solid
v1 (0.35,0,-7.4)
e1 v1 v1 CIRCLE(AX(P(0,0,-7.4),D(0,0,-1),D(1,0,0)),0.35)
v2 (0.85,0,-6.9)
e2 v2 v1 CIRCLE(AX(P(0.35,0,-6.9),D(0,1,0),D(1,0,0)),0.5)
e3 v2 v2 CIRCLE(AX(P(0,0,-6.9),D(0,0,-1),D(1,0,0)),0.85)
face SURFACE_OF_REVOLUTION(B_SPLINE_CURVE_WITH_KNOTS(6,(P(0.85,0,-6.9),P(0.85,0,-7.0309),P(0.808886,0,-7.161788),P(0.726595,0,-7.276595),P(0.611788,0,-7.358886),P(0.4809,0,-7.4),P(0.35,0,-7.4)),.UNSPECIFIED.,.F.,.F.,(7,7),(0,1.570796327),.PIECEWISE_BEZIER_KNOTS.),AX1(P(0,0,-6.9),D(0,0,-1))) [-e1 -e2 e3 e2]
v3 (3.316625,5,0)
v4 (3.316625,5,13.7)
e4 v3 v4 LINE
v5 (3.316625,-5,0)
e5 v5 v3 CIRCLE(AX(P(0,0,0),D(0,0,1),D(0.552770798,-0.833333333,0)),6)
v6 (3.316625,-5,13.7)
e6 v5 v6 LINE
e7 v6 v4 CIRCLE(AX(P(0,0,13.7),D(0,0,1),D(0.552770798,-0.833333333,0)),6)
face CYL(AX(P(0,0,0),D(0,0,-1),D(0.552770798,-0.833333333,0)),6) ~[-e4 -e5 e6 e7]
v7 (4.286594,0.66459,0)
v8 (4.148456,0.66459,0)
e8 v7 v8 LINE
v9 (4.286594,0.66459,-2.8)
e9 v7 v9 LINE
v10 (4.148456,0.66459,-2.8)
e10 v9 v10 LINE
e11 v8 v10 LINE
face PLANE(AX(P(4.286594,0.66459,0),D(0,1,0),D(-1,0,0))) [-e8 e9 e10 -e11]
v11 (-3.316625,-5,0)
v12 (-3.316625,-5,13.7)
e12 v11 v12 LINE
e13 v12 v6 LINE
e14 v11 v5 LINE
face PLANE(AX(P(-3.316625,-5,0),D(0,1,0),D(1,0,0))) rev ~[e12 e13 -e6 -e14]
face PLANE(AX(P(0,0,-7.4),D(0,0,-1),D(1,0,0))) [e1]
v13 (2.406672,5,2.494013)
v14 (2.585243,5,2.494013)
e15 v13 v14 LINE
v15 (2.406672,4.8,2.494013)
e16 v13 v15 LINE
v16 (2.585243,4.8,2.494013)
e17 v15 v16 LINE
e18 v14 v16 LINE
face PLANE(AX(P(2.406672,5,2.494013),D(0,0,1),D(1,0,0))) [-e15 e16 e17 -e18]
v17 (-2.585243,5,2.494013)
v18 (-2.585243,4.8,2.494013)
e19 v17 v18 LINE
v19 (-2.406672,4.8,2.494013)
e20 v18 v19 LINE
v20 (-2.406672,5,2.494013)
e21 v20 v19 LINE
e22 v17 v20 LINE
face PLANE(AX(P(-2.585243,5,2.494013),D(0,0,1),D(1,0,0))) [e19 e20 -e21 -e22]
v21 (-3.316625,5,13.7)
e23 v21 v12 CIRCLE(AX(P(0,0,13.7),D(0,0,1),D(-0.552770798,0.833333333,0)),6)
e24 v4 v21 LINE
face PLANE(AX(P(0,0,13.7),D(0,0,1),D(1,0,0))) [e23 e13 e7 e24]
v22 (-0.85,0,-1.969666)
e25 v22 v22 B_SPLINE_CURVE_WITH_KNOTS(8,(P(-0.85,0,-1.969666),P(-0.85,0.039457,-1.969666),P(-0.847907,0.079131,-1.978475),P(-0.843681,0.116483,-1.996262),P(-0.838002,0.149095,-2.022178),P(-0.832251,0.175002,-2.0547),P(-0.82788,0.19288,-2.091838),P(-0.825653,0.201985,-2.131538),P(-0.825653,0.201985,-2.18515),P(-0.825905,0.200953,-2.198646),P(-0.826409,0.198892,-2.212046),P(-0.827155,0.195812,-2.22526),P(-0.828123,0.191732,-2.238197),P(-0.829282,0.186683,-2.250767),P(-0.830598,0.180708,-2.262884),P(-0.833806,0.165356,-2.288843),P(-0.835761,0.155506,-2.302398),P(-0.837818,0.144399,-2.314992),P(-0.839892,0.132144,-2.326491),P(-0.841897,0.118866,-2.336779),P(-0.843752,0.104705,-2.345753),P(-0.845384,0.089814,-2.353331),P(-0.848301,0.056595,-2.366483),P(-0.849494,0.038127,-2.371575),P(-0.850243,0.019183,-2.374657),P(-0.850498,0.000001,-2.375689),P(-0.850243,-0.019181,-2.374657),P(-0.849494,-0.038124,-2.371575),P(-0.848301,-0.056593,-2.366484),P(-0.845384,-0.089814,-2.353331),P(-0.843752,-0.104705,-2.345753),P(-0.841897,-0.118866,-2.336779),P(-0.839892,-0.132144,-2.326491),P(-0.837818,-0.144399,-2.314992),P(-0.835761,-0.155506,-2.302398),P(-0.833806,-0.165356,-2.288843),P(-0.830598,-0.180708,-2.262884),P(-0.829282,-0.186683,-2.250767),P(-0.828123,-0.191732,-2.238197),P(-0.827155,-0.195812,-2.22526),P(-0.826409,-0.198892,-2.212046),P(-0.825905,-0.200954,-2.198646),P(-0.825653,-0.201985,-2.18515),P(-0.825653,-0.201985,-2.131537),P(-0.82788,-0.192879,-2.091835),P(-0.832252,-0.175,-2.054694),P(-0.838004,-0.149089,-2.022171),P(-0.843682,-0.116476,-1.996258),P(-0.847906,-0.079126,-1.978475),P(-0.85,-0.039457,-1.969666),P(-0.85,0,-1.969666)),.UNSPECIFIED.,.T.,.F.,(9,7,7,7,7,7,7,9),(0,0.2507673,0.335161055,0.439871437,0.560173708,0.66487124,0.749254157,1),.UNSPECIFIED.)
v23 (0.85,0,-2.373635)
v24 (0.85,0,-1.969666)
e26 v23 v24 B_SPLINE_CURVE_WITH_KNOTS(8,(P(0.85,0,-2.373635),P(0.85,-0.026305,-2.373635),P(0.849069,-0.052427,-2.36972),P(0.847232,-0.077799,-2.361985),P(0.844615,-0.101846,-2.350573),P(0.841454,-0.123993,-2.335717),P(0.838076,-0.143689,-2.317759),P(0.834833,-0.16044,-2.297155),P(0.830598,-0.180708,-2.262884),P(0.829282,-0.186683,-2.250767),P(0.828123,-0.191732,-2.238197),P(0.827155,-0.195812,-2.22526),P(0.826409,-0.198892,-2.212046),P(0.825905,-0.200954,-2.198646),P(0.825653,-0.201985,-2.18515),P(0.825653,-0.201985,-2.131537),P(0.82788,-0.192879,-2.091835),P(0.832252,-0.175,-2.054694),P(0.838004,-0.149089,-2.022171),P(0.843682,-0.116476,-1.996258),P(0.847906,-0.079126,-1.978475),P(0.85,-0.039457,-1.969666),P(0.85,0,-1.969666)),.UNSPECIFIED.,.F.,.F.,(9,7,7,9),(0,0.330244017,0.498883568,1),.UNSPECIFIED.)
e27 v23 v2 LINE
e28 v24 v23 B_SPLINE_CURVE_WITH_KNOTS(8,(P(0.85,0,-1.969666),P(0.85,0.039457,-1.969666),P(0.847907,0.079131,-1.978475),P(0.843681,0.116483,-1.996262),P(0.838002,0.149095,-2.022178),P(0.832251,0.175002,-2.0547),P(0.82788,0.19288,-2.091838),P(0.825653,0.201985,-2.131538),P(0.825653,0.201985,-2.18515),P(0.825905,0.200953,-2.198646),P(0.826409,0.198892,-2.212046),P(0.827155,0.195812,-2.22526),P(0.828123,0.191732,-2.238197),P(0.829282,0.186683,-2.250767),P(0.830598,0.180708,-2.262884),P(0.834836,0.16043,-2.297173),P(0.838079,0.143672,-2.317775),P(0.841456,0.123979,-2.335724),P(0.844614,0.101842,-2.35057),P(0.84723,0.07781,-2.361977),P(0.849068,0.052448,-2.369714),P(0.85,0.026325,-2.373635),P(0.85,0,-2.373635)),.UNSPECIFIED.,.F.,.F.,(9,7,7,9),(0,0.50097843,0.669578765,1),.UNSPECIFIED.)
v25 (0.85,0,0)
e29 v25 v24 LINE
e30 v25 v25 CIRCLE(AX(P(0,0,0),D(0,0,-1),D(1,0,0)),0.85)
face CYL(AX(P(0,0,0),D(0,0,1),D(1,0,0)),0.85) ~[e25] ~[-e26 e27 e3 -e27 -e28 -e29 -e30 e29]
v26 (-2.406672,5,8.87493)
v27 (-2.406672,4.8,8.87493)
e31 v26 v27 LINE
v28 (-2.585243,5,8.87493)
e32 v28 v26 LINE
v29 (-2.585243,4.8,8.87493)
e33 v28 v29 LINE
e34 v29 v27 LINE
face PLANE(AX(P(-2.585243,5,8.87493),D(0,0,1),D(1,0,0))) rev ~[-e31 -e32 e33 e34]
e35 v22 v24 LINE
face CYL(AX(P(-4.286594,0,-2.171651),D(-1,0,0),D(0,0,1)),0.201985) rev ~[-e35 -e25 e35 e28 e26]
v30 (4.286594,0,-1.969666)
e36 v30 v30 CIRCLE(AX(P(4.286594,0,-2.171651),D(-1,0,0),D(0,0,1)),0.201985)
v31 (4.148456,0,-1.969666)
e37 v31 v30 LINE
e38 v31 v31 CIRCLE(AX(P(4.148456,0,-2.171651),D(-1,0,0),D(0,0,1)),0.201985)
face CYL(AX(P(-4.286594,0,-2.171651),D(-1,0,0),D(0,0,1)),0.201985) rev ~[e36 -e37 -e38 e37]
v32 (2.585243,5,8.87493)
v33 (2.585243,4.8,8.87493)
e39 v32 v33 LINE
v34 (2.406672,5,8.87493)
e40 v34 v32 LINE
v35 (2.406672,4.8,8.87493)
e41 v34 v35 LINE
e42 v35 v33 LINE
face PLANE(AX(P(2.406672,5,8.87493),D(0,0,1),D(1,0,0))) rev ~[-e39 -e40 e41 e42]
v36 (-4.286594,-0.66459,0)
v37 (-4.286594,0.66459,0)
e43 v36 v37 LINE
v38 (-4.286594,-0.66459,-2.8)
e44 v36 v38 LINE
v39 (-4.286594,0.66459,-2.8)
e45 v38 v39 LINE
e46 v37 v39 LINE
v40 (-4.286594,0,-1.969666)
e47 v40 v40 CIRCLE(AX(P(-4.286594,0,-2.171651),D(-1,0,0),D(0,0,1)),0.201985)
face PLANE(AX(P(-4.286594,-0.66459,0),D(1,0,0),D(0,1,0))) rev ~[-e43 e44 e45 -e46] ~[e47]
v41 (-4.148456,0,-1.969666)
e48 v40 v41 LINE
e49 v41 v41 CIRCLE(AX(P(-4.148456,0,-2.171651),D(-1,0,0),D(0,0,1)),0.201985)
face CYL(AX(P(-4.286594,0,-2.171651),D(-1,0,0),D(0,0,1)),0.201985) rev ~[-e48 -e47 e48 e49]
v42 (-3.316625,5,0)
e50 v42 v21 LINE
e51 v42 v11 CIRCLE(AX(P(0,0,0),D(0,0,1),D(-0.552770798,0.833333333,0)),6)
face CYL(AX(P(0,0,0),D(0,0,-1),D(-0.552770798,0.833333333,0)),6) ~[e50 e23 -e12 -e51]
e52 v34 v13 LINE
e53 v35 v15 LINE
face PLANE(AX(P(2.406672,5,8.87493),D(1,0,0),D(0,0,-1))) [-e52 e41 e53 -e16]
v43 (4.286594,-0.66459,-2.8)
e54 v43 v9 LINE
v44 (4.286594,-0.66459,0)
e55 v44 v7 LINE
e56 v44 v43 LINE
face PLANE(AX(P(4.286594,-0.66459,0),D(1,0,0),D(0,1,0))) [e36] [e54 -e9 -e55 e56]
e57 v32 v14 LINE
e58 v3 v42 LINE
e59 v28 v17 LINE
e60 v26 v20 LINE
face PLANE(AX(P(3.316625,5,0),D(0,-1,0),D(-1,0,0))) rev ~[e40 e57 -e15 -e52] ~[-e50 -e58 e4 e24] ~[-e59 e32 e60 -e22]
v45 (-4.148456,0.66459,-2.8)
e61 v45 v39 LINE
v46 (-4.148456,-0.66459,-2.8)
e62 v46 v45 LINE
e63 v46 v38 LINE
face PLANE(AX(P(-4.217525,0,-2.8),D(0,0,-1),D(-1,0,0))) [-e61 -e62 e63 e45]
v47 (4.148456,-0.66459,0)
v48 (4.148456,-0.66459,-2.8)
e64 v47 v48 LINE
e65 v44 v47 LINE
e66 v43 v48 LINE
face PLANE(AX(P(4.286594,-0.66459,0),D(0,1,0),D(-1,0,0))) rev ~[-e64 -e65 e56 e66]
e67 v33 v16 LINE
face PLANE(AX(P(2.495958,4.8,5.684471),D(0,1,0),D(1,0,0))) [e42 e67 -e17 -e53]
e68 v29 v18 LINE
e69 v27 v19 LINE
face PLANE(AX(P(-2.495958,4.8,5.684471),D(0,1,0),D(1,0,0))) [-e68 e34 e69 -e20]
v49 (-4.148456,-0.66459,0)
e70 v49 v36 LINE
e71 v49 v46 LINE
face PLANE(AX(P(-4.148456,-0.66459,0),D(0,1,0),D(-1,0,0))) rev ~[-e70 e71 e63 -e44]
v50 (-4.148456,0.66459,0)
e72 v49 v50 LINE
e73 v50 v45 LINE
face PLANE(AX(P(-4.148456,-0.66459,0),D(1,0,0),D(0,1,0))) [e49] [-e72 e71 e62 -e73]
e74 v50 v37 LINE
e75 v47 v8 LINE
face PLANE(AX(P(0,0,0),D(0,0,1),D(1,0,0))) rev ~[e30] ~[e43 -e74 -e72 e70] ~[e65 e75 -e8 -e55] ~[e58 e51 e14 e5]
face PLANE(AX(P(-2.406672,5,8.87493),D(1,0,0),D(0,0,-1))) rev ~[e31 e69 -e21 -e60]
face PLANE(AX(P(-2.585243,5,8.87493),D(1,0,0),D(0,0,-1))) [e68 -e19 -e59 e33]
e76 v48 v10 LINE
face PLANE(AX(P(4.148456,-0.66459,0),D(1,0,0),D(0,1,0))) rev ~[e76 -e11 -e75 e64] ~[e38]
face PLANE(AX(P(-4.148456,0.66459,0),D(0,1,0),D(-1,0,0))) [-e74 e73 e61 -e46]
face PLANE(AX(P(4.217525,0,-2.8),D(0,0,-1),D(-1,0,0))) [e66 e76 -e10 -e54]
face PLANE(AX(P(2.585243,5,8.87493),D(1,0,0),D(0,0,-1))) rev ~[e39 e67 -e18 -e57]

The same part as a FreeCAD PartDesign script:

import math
import FreeCAD as App
import Part
import Sketcher
Q = App.Units.Quantity


def edges_at(feature, points):
    """Names of the edges that pass closest to the given points."""
    edges = feature.Shape.Edges
    near = lambda p: min(range(len(edges)), key=lambda i: edges[i].distToShape(Part.Vertex(*p))[0])
    return sorted({f"Edge{near(p) + 1}" for p in points})


def add_polygon(sketch, points):
    """Adds a closed chain of lines whose ends are joined by coincident constraints."""
    first, n = sketch.GeometryCount, len(points)
    for a, b in zip(points, points[1:] + points[:1]):
        sketch.addGeometry(Part.LineSegment(App.Vector(*a, 0), App.Vector(*b, 0)), False)
    for i in range(n):
        sketch.addConstraint(Sketcher.Constraint("Coincident", first + i, 2, first + (i + 1) % n, 1))

doc = App.newDocument("Part")
body = doc.addObject("PartDesign::Body", "Body")

# Sketch on XY plane
sketch1 = body.newObject("Sketcher::SketchObject", "Sketch")
sketch1.AttachmentSupport = (doc.getObject("XY_Plane"), [""])
sketch1.MapMode = "FlatFace"
sketch1.addGeometry([
    Part.LineSegment(App.Vector(-3.316625, -5, 0), App.Vector(3.316625, -5, 0)),
    Part.ArcOfCircle(Part.Circle(App.Vector(0, 0, 0), App.Vector(0, 0, 1), 6), math.radians(-56.44269), math.radians(56.44269)),
    Part.LineSegment(App.Vector(3.316625, 5, 0), App.Vector(-3.316625, 5, 0)),
    Part.ArcOfCircle(Part.Circle(App.Vector(0, 0, 0), App.Vector(0, 0, 1), 6), math.radians(123.55731), math.radians(236.44269)),
], False)
sketch1.addConstraint([
    Sketcher.Constraint("Coincident", 0, 2, 1, 1),
    Sketcher.Constraint("Coincident", 1, 2, 2, 1),
    Sketcher.Constraint("Coincident", 2, 2, 3, 1),
    Sketcher.Constraint("Coincident", 3, 2, 0, 1),
    Sketcher.Constraint("Horizontal", 0),
    Sketcher.Constraint("Horizontal", 2),
    Sketcher.Constraint("Coincident", 1, 3, -1, 1),
    Sketcher.Constraint("Coincident", 3, 3, -1, 1),
    Sketcher.Constraint("Equal", 1, 3),
    Sketcher.Constraint("Vertical", 0, 2, 1, 2),
    Sketcher.Constraint("Radius", 1, Q("6 mm")),
    Sketcher.Constraint("DistanceY", 0, 2, -1, 1, Q("5 mm")),
])
pad1 = body.newObject("PartDesign::Pad", "Pad")
pad1.Profile = sketch1
pad1.Length = 13.7

# Sketch on XZ plane
sketch2 = body.newObject("Sketcher::SketchObject", "Sketch001")
sketch2.AttachmentSupport = (doc.getObject("XZ_Plane"), [""])
sketch2.MapMode = "FlatFace"
sketch2.AttachmentOffset = App.Placement(App.Vector(0, 0, -5), App.Rotation())
add_polygon(sketch2, [(-2.585243, 2.494013), (-2.585243, 8.87493), (-2.406672, 8.87493), (-2.406672, 2.494013)])  # lines 0-3
add_polygon(sketch2, [(2.406672, 2.494013), (2.406672, 8.87493), (2.585243, 8.87493), (2.585243, 2.494013)])  # lines 4-7
sketch2.addConstraint([
    Sketcher.Constraint("Vertical", 0),
    Sketcher.Constraint("Horizontal", 1),
    Sketcher.Constraint("Vertical", 2),
    Sketcher.Constraint("Horizontal", 3),
    Sketcher.Constraint("Vertical", 4),
    Sketcher.Constraint("Horizontal", 5),
    Sketcher.Constraint("Vertical", 6),
    Sketcher.Constraint("Horizontal", 7),
    Sketcher.Constraint("Symmetric", 1, 2, 4, 2, -2),
    Sketcher.Constraint("Symmetric", 3, 2, 6, 2, -2),
    Sketcher.Constraint("DistanceX", 1, 1, 1, 2, Q("0.178572 mm")),
    Sketcher.Constraint("DistanceY", 0, 1, 0, 2, Q("6.380917 mm")),
    Sketcher.Constraint("DistanceY", -1, 1, 0, 2, Q("8.87493 mm")),
    Sketcher.Constraint("DistanceX", 1, 2, -1, 1, Q("2.406672 mm")),
])
pocket1 = body.newObject("PartDesign::Pocket", "Pocket")
pocket1.Profile = sketch2
pocket1.Length = 0.2
pocket1.Reversed = True

# Sketch on XY plane
sketch3 = body.newObject("Sketcher::SketchObject", "Sketch002")
sketch3.AttachmentSupport = (doc.getObject("XY_Plane"), [""])
sketch3.MapMode = "FlatFace"
sketch3.addGeometry(Part.Circle(App.Vector(0, 0, 0), App.Vector(0, 0, 1), 0.85), False)
sketch3.addConstraint([
    Sketcher.Constraint("Coincident", 0, 3, -1, 1),
    Sketcher.Constraint("Diameter", 0, Q("1.7 mm")),
])
pad2 = body.newObject("PartDesign::Pad", "Pad001")
pad2.Profile = sketch3
pad2.Length = 7.4
pad2.Reversed = True

# Sketch on XY plane
sketch4 = body.newObject("Sketcher::SketchObject", "Sketch003")
sketch4.AttachmentSupport = (doc.getObject("XY_Plane"), [""])
sketch4.MapMode = "FlatFace"
add_polygon(sketch4, [(4.286594, 0.66459), (4.286594, -0.66459), (4.148456, -0.66459), (4.148456, 0.66459)])  # lines 0-3
add_polygon(sketch4, [(-4.148456, 0.66459), (-4.148456, -0.66459), (-4.286594, -0.66459), (-4.286594, 0.66459)])  # lines 4-7
sketch4.addConstraint([
    Sketcher.Constraint("Vertical", 0),
    Sketcher.Constraint("Horizontal", 1),
    Sketcher.Constraint("Vertical", 2),
    Sketcher.Constraint("Horizontal", 3),
    Sketcher.Constraint("Vertical", 4),
    Sketcher.Constraint("Horizontal", 5),
    Sketcher.Constraint("Vertical", 6),
    Sketcher.Constraint("Horizontal", 7),
    Sketcher.Constraint("Symmetric", 2, 2, 4, 2, -1, 1),
    Sketcher.Constraint("Symmetric", 0, 2, 6, 2, -1, 1),
    Sketcher.Constraint("Horizontal", 1, 2, 4, 2),
    Sketcher.Constraint("DistanceY", 0, 2, 0, 1, Q("1.329179 mm")),
    Sketcher.Constraint("DistanceX", 1, 2, 1, 1, Q("0.138138 mm")),
    Sketcher.Constraint("DistanceX", 4, 2, 0, 2, Q("8.435051 mm")),
])
pad3 = body.newObject("PartDesign::Pad", "Pad002")
pad3.Profile = sketch4
pad3.Length = 2.8
pad3.Reversed = True

# Sketch on YZ plane
sketch5 = body.newObject("Sketcher::SketchObject", "Sketch004")
sketch5.AttachmentSupport = (doc.getObject("YZ_Plane"), [""])
sketch5.MapMode = "FlatFace"
sketch5.AttachmentOffset = App.Placement(App.Vector(0, 0, -4.286594), App.Rotation())
sketch5.addGeometry(Part.Circle(App.Vector(0, -2.171651, 0), App.Vector(0, 0, 1), 0.201985), False)
sketch5.addConstraint([
    Sketcher.Constraint("PointOnObject", 0, 3, -2),
    Sketcher.Constraint("Diameter", 0, Q("0.403969 mm")),
    Sketcher.Constraint("DistanceY", 0, 3, -1, 1, Q("2.171651 mm")),
])
pocket2 = body.newObject("PartDesign::Pocket", "Pocket001")
pocket2.Profile = sketch5
pocket2.Length = 9.6
pocket2.Reversed = True
doc.recompute()

fillet = body.newObject("PartDesign::Fillet", "Fillet")
fillet.Base = (pocket2, edges_at(pocket2, [(-0.85, 0, -7.4)]))
fillet.Radius = 0.5

doc.recompute()
